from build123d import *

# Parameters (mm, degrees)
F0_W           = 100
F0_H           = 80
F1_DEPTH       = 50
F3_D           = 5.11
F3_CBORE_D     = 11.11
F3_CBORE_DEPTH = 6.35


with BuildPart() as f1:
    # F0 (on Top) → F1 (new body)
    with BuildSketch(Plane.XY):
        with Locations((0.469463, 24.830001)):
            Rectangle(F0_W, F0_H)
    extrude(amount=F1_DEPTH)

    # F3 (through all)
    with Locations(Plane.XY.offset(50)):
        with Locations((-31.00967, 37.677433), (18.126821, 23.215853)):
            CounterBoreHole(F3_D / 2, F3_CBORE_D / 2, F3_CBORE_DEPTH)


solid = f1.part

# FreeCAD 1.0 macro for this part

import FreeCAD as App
import Part
import Sketcher

V = App.Vector

doc = App.newDocument("Part")
params = doc.addObject("Spreadsheet::Sheet", "Params")
for row, (alias, value) in enumerate([
    ("sketch1_width", "100 mm"),
    ("sketch1_height", "80 mm"),
    ("pad1_length", "50 mm"),
    ("sketch2_diameter", "5.11 mm"),
    ("hole_diameter", "5.11 mm"),
    ("hole_cbore_diameter", "11.11 mm"),
    ("hole_cbore_depth", "6.35 mm"),
], start=1):
    params.set(f"A{row}", alias)
    params.set(f"B{row}", "=" + value)
    params.setAlias(f"B{row}", alias)

body = doc.addObject("PartDesign::Body", "Body")

# Sketch on XY plane
sketch1 = body.newObject("Sketcher::SketchObject", "Sketch")
sketch1.AttachmentSupport = (doc.getObject("XY_Plane"), [""])
sketch1.MapMode = "FlatFace"
sketch1.addGeometry([
    Part.LineSegment(V(-50, 65, 0), V(-50, -15, 0)),
    Part.LineSegment(V(-50, -15, 0), V(50, -15, 0)),
    Part.LineSegment(V(50, -15, 0), V(50, 65, 0)),
    Part.LineSegment(V(50, 65, 0), V(-50, 65, 0)),
], False)
sketch1.addConstraint([
    Sketcher.Constraint("Coincident", 0, 2, 1, 1),
    Sketcher.Constraint("Coincident", 1, 2, 2, 1),
    Sketcher.Constraint("Coincident", 2, 2, 3, 1),
    Sketcher.Constraint("Coincident", 3, 2, 0, 1),
    Sketcher.Constraint("Vertical", 0),
    Sketcher.Constraint("Horizontal", 1),
    Sketcher.Constraint("Vertical", 2),
    Sketcher.Constraint("Horizontal", 3),
    Sketcher.Constraint("DistanceX", 1, 1, 1, 2, 100.0),
    Sketcher.Constraint("DistanceY", 0, 2, 0, 1, 80.0),
    Sketcher.Constraint("DistanceY", 0, 2, -1, 1, 15.169999),
    Sketcher.Constraint("DistanceX", 0, 2, -1, 1, 49.530537),
])
sketch1.setExpression("Constraints[8]", "Params.sketch1_width")
sketch1.setExpression("Constraints[9]", "Params.sketch1_height")
pad1 = body.newObject("PartDesign::Pad", "Pad")
pad1.Profile = sketch1
pad1.setExpression("Length", "Params.pad1_length")

# Sketch on XY plane
sketch2 = body.newObject("Sketcher::SketchObject", "Sketch001")
sketch2.AttachmentSupport = (doc.getObject("XY_Plane"), [""])
sketch2.MapMode = "FlatFace"
sketch2.AttachmentOffset = App.Placement(V(0, 0, 50), App.Rotation())
sketch2.addGeometry([
    Part.Circle(V(-31, 37.7, 0), V(0, 0, 1), 2.6),
    Part.Circle(V(18.1, 23.2, 0), V(0, 0, 1), 2.6),
], False)
sketch2.addConstraint([
    Sketcher.Constraint("Equal", 0, 1),
    Sketcher.Constraint("Diameter", 0, 5.11),
    Sketcher.Constraint("DistanceX", 0, 3, -1, 1, 31.00967),
    Sketcher.Constraint("DistanceX", -1, 1, 1, 3, 18.126821),
    Sketcher.Constraint("DistanceY", 1, 3, 0, 3, 14.46158),
    Sketcher.Constraint("DistanceY", -1, 1, 0, 3, 37.677433),
])
sketch2.setExpression("Constraints[1]", "Params.sketch2_diameter")
doc.recompute()
hole = body.newObject("PartDesign::Hole", "Hole")
hole.Profile = sketch2
hole.ThreadType = "None"
hole.setExpression("Diameter", "Params.hole_diameter")
hole.DepthType = "ThroughAll"
hole.HoleCutType = "Counterbore"
hole.setExpression("HoleCutDiameter", "Params.hole_cbore_diameter")
hole.setExpression("HoleCutDepth", "Params.hole_cbore_depth")

doc.recompute()
